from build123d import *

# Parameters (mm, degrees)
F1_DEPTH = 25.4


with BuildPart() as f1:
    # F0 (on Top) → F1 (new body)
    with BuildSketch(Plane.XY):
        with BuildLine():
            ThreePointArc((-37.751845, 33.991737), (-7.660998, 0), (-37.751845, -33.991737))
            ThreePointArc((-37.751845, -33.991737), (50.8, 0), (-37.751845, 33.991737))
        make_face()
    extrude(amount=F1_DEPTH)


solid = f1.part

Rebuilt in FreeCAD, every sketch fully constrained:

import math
import FreeCAD as App
import Part
import Sketcher

V = App.Vector
Q = App.Units.Quantity

doc = App.newDocument("Part")
body = doc.addObject("PartDesign::Body", "Body")

# Sketch on XY plane
sketch1 = doc.addObject("Sketcher::SketchObject", "Sketch")
body.addObject(sketch1)
sketch1.AttachmentSupport = (doc.XY_Plane, [""])
sketch1.MapMode = "FlatFace"
sketch1.addGeometry([
    Part.ArcOfCircle(Part.Circle(V(-42, 0, 0), V(0, 0, 1), 34), math.radians(-83), math.radians(83)),
    Part.ArcOfCircle(Part.Circle(V(0, 0, 0), V(0, 0, 1), 51), math.radians(-138), math.radians(138)),
], False)
sketch1.addConstraint([
    Sketcher.Constraint("Coincident", 0, 1, 1, 1),
    Sketcher.Constraint("Coincident", 1, 2, 0, 2),
    Sketcher.Constraint("Coincident", 1, 3, -1, 1),
    Sketcher.Constraint("PointOnObject", 0, 3, -1),
    Sketcher.Constraint("Radius", 1, Q("2 in")),
    Sketcher.Constraint("Radius", 0, Q("34.244587 mm")),
    Sketcher.Constraint("DistanceX", 0, 3, 0, 1, Q("4.15374 mm")),
])
pad1 = doc.addObject("PartDesign::Pad", "Pad")
body.addObject(pad1)
pad1.Profile = sketch1
pad1.Length = Q("1 in")

doc.recompute()
